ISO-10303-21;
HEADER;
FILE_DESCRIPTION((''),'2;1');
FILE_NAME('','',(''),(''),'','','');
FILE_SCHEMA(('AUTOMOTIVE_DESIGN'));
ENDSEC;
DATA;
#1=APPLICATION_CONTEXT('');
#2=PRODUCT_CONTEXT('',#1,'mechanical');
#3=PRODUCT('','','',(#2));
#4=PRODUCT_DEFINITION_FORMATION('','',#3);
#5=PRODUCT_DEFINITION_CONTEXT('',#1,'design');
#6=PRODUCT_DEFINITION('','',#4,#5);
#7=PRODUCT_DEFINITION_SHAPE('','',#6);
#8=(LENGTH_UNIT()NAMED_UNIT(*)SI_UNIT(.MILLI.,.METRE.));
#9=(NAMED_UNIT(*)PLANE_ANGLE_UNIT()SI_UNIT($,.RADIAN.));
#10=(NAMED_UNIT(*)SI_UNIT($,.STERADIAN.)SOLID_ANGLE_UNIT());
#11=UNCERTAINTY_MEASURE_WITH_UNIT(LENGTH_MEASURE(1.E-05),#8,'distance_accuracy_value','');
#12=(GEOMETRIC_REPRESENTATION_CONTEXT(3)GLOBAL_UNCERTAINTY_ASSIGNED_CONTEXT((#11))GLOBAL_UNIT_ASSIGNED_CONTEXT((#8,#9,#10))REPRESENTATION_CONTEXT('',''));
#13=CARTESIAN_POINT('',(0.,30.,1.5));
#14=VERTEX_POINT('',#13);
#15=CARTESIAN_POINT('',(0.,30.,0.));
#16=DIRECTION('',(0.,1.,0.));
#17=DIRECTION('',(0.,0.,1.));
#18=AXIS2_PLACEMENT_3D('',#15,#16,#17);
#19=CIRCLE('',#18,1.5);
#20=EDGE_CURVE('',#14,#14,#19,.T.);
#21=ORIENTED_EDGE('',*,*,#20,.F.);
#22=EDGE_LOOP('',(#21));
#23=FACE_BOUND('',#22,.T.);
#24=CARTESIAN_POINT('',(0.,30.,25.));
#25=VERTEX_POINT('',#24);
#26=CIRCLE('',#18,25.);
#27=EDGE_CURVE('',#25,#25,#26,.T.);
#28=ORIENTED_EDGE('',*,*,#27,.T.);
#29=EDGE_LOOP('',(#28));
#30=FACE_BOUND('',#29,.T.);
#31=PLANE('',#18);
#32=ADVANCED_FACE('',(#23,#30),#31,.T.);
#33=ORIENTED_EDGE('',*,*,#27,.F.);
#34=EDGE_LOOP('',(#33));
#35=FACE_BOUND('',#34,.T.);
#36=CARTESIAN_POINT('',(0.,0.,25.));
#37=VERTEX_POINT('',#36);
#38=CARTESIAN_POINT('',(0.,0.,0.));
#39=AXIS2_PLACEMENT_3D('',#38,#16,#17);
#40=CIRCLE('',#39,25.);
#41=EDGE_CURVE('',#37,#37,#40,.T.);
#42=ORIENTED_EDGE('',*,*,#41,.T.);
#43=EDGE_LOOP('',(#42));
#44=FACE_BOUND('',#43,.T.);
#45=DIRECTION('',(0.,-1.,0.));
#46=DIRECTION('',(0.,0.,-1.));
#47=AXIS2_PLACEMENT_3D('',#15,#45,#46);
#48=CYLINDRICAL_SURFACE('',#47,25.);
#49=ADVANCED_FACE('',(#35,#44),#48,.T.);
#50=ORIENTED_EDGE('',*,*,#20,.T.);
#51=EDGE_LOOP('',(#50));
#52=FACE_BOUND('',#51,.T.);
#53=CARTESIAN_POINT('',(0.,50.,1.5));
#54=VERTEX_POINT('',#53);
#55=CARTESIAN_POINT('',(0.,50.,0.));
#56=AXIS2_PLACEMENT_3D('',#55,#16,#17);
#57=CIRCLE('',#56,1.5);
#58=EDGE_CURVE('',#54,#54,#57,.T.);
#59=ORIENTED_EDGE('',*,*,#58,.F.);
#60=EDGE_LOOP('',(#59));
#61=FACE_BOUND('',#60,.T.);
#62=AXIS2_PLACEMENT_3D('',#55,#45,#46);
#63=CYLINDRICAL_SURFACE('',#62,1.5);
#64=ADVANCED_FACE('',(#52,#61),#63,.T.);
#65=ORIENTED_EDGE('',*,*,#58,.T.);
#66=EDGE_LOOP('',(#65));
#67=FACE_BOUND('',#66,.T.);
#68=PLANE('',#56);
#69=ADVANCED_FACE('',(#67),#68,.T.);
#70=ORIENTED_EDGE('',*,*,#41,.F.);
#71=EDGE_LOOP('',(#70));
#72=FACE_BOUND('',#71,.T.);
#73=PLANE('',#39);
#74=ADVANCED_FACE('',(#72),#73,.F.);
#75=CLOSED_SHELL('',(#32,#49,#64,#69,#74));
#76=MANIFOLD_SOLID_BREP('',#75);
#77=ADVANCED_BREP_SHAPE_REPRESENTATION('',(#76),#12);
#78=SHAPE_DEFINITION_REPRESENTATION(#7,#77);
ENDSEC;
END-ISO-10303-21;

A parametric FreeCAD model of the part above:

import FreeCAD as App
import Part
import Sketcher
from FreeCAD import Vector

doc = App.newDocument("Part")
body = doc.addObject("PartDesign::Body", "Body")

sketch1 = body.newObject("Sketcher::SketchObject", "Sketch")
sketch1.AttachmentSupport = (doc.getObject("XZ_Plane"), [""])
sketch1.MapMode = "FlatFace"
sketch1.addGeometry(Part.Circle(Vector(0, 0, 0), Vector(0, 0, 1), 25), False)
sketch1.addConstraint([
    Sketcher.Constraint("Coincident", 0, 3, -1, 1),
    Sketcher.Constraint("Diameter", 0, 50.0),
])
pad1 = body.newObject("PartDesign::Pad", "Pad")
pad1.Profile = sketch1
pad1.Length = 30
pad1.Reversed = True

sketch2 = body.newObject("Sketcher::SketchObject", "Sketch001")
sketch2.AttachmentSupport = (doc.getObject("XZ_Plane"), [""])
sketch2.MapMode = "FlatFace"
sketch2.AttachmentOffset = App.Placement(Vector(0, 0, -30), App.Rotation())
sketch2.addGeometry(Part.Circle(Vector(0, 0, 0), Vector(0, 0, 1), 1.5), False)
sketch2.addConstraint([
    Sketcher.Constraint("Coincident", 0, 3, -1, 1),
    Sketcher.Constraint("Diameter", 0, 3.0),
])
pad2 = body.newObject("PartDesign::Pad", "Pad001")
pad2.Profile = sketch2
pad2.Length = 20
pad2.Reversed = True

doc.recompute()
